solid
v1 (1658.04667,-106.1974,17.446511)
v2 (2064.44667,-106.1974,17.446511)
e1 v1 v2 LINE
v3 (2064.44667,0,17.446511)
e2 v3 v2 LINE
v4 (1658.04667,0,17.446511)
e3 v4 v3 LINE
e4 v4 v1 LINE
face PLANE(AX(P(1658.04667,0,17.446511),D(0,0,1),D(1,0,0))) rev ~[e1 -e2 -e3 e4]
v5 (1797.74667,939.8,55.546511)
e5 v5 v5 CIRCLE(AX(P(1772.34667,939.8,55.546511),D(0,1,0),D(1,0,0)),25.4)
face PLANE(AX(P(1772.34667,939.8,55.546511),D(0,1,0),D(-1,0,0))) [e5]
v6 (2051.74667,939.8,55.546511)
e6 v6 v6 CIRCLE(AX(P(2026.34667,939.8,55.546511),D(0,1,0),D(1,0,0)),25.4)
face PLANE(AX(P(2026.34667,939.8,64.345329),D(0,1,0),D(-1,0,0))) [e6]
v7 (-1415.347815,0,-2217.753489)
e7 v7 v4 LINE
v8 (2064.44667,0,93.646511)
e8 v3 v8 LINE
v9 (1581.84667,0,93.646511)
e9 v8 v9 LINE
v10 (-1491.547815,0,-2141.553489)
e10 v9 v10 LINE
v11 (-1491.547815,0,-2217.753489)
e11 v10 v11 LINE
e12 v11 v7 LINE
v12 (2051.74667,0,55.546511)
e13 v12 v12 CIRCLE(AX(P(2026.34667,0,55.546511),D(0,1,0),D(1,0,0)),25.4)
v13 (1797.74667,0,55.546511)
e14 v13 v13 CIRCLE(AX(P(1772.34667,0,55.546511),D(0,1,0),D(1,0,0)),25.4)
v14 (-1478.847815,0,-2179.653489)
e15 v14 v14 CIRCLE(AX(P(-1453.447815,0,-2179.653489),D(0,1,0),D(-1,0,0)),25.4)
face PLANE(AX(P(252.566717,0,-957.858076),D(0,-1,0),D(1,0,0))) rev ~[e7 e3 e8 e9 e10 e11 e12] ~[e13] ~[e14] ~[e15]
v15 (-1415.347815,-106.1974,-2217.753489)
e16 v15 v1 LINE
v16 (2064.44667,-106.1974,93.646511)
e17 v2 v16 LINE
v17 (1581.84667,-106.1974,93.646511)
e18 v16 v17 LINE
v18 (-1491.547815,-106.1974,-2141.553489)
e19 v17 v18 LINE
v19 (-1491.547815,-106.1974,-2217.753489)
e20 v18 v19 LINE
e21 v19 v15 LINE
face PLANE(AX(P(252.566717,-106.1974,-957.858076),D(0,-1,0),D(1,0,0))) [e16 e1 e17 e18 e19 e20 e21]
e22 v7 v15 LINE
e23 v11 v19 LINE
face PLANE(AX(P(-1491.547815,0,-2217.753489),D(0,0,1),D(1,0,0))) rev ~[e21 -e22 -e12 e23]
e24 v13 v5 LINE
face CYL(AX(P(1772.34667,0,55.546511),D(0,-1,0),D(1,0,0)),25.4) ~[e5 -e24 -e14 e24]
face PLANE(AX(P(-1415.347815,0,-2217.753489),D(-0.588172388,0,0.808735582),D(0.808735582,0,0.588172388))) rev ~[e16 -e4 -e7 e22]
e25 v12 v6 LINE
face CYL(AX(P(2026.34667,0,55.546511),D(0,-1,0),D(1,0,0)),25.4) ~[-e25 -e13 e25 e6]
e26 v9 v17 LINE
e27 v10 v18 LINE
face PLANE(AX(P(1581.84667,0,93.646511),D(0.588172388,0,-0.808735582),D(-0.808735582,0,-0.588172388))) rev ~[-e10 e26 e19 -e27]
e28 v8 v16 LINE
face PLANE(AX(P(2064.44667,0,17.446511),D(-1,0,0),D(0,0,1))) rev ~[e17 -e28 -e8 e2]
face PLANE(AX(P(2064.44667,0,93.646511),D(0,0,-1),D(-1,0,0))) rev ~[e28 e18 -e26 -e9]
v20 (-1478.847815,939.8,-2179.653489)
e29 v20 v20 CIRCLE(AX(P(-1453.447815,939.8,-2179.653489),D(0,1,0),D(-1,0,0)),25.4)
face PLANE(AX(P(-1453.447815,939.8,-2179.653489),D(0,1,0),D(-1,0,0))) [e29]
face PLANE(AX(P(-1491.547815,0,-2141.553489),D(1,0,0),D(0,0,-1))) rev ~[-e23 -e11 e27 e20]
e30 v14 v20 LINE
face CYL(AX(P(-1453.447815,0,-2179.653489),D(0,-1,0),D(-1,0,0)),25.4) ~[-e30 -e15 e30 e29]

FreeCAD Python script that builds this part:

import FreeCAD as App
import Part
import Sketcher

V = App.Vector
Q = App.Units.Quantity

doc = App.newDocument("Part")
body = doc.addObject("PartDesign::Body", "Body")

sketch1 = body.newObject("Sketcher::SketchObject", "Sketch")
sketch1.AttachmentSupport = (doc.getObject("XZ_Plane"), [""])
sketch1.MapMode = "FlatFace"
sketch1.addGeometry([
    Part.LineSegment(V(2064.44667, 17.446511, 0), V(2064.44667, 93.646511, 0)),
    Part.LineSegment(V(2064.44667, 93.646511, 0), V(1581.84667, 93.646511, 0)),
    Part.LineSegment(V(1581.84667, 93.646511, 0), V(-1491.547815, -2141.553489, 0)),
    Part.LineSegment(V(-1491.547815, -2141.553489, 0), V(-1491.547815, -2217.753489, 0)),
    Part.LineSegment(V(-1491.547815, -2217.753489, 0), V(-1415.347815, -2217.753489, 0)),
    Part.LineSegment(V(-1415.347815, -2217.753489, 0), V(1658.04667, 17.446511, 0)),
    Part.LineSegment(V(1658.04667, 17.446511, 0), V(2064.44667, 17.446511, 0)),
], False)
sketch1.addConstraint([
    Sketcher.Constraint("Coincident", 0, 2, 1, 1),
    Sketcher.Constraint("Coincident", 1, 2, 2, 1),
    Sketcher.Constraint("Coincident", 2, 2, 3, 1),
    Sketcher.Constraint("Coincident", 3, 2, 4, 1),
    Sketcher.Constraint("Coincident", 4, 2, 5, 1),
    Sketcher.Constraint("Coincident", 5, 2, 6, 1),
    Sketcher.Constraint("Coincident", 6, 2, 0, 1),
    Sketcher.Constraint("Vertical", 0),
    Sketcher.Constraint("Horizontal", 1),
    Sketcher.Constraint("Vertical", 3),
    Sketcher.Constraint("Horizontal", 4),
    Sketcher.Constraint("Horizontal", 6),
    Sketcher.Constraint("Parallel", 2, 5),
    Sketcher.Constraint("Equal", 4, 0),
    Sketcher.Constraint("Equal", 0, 3),
    Sketcher.Constraint("DistanceX", 1, 2, 1, 1, Q("19 in")),
    Sketcher.Constraint("DistanceX", 4, 1, 4, 2, Q("3 in")),
    Sketcher.Constraint("DistanceY", 2, 2, 1, 2, Q("88 in")),
    Sketcher.Constraint("Distance", 2, Q("149.616 in")),
    Sketcher.Constraint("DistanceX", -1, 1, 0, 2, Q("2064.44667 mm")),
    Sketcher.Constraint("DistanceY", -1, 1, 0, 2, Q("93.646511 mm")),
])
pad1 = body.newObject("PartDesign::Pad", "Pad")
pad1.Profile = sketch1
pad1.Length = Q("4.181 in")

sketch2 = body.newObject("Sketcher::SketchObject", "Sketch001")
sketch2.AttachmentSupport = (doc.getObject("XZ_Plane"), [""])
sketch2.MapMode = "FlatFace"
sketch2.addGeometry([
    Part.Circle(V(1772.34667, 55.546511, 0), V(0, 0, 1), 25.4),
    Part.Circle(V(2026.34667, 55.546511, 0), V(0, 0, 1), 25.4),
    Part.Circle(V(-1453.447815, -2179.653489, 0), V(0, 0, 1), 25.4),
], False)
sketch2.addConstraint([
    Sketcher.Constraint("Equal", 0, 1),
    Sketcher.Constraint("Equal", 1, 2),
    Sketcher.Constraint("Horizontal", 0, 3, 1, 3),
    Sketcher.Constraint("Diameter", 0, Q("2 in")),
    Sketcher.Constraint("DistanceX", 0, 3, 1, 3, Q("10 in")),
    Sketcher.Constraint("DistanceY", 2, 3, 0, 3, Q("88 in")),
    Sketcher.Constraint("DistanceX", -1, 1, 0, 3, Q("1772.34667 mm")),
    Sketcher.Constraint("DistanceY", -1, 1, 0, 3, Q("55.546511 mm")),
    Sketcher.Constraint("DistanceX", 2, 3, -1, 1, Q("1453.447815 mm")),
])
pad2 = body.newObject("PartDesign::Pad", "Pad001")
pad2.Profile = sketch2
pad2.Length = Q("37 in")
pad2.Reversed = True

doc.recompute()
